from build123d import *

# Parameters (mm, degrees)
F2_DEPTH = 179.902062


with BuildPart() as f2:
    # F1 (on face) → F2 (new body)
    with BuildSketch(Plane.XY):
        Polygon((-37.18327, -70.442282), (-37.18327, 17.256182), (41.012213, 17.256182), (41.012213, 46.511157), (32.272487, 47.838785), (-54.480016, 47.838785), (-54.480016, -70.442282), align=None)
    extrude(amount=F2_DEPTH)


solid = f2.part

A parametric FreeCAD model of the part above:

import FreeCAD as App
import Part
import Sketcher
Q = App.Units.Quantity

doc = App.newDocument("Part")
params = doc.addObject("Spreadsheet::Sheet", "Params")
for row, (alias, value) in enumerate([
    ("pad1_length", "179.902062 mm"),
], start=1):
    params.set(f"A{row}", alias)
    params.set(f"B{row}", "=" + value)
    params.setAlias(f"B{row}", alias)

body = doc.addObject("PartDesign::Body", "Body")

sketch1 = body.newObject("Sketcher::SketchObject", "Sketch")
sketch1.AttachmentSupport = (doc.getObject("XY_Plane"), [""])
sketch1.MapMode = "FlatFace"
sketch1.addGeometry([
    Part.LineSegment(App.Vector(-37, -70, 0), App.Vector(-37, 17, 0)),
    Part.LineSegment(App.Vector(-37, 17, 0), App.Vector(41, 17, 0)),
    Part.LineSegment(App.Vector(41, 17, 0), App.Vector(41, 47, 0)),
    Part.LineSegment(App.Vector(41, 47, 0), App.Vector(32, 48, 0)),
    Part.LineSegment(App.Vector(32, 48, 0), App.Vector(-54, 48, 0)),
    Part.LineSegment(App.Vector(-54, 48, 0), App.Vector(-54, -70, 0)),
    Part.LineSegment(App.Vector(-54, -70, 0), App.Vector(-37, -70, 0)),
], False)
sketch1.addConstraint([
    Sketcher.Constraint("Coincident", 0, 2, 1, 1),
    Sketcher.Constraint("Coincident", 1, 2, 2, 1),
    Sketcher.Constraint("Coincident", 2, 2, 3, 1),
    Sketcher.Constraint("Coincident", 3, 2, 4, 1),
    Sketcher.Constraint("Coincident", 4, 2, 5, 1),
    Sketcher.Constraint("Coincident", 5, 2, 6, 1),
    Sketcher.Constraint("Coincident", 6, 2, 0, 1),
    Sketcher.Constraint("Vertical", 0),
    Sketcher.Constraint("Horizontal", 1),
    Sketcher.Constraint("Vertical", 2),
    Sketcher.Constraint("Horizontal", 4),
    Sketcher.Constraint("Vertical", 5),
    Sketcher.Constraint("Horizontal", 6),
    Sketcher.Constraint("Distance", 3, Q("8.839989 mm")),
    Sketcher.Constraint("DistanceX", 1, 1, 1, 2, Q("78.195483 mm")),
    Sketcher.Constraint("DistanceX", 4, 2, 4, 1, Q("86.752503 mm")),
    Sketcher.Constraint("DistanceX", 6, 1, 6, 2, Q("17.296746 mm")),
    Sketcher.Constraint("DistanceY", 0, 1, 0, 2, Q("87.698464 mm")),
    Sketcher.Constraint("DistanceY", 2, 1, 2, 2, Q("29.254975 mm")),
    Sketcher.Constraint("DistanceX", 0, 2, -1, 1, Q("37.18327 mm")),
    Sketcher.Constraint("DistanceY", -1, 1, 0, 2, Q("17.256182 mm")),
])
pad1 = body.newObject("PartDesign::Pad", "Pad")
pad1.Profile = sketch1
pad1.setExpression("Length", "Params.pad1_length")

doc.recompute()
